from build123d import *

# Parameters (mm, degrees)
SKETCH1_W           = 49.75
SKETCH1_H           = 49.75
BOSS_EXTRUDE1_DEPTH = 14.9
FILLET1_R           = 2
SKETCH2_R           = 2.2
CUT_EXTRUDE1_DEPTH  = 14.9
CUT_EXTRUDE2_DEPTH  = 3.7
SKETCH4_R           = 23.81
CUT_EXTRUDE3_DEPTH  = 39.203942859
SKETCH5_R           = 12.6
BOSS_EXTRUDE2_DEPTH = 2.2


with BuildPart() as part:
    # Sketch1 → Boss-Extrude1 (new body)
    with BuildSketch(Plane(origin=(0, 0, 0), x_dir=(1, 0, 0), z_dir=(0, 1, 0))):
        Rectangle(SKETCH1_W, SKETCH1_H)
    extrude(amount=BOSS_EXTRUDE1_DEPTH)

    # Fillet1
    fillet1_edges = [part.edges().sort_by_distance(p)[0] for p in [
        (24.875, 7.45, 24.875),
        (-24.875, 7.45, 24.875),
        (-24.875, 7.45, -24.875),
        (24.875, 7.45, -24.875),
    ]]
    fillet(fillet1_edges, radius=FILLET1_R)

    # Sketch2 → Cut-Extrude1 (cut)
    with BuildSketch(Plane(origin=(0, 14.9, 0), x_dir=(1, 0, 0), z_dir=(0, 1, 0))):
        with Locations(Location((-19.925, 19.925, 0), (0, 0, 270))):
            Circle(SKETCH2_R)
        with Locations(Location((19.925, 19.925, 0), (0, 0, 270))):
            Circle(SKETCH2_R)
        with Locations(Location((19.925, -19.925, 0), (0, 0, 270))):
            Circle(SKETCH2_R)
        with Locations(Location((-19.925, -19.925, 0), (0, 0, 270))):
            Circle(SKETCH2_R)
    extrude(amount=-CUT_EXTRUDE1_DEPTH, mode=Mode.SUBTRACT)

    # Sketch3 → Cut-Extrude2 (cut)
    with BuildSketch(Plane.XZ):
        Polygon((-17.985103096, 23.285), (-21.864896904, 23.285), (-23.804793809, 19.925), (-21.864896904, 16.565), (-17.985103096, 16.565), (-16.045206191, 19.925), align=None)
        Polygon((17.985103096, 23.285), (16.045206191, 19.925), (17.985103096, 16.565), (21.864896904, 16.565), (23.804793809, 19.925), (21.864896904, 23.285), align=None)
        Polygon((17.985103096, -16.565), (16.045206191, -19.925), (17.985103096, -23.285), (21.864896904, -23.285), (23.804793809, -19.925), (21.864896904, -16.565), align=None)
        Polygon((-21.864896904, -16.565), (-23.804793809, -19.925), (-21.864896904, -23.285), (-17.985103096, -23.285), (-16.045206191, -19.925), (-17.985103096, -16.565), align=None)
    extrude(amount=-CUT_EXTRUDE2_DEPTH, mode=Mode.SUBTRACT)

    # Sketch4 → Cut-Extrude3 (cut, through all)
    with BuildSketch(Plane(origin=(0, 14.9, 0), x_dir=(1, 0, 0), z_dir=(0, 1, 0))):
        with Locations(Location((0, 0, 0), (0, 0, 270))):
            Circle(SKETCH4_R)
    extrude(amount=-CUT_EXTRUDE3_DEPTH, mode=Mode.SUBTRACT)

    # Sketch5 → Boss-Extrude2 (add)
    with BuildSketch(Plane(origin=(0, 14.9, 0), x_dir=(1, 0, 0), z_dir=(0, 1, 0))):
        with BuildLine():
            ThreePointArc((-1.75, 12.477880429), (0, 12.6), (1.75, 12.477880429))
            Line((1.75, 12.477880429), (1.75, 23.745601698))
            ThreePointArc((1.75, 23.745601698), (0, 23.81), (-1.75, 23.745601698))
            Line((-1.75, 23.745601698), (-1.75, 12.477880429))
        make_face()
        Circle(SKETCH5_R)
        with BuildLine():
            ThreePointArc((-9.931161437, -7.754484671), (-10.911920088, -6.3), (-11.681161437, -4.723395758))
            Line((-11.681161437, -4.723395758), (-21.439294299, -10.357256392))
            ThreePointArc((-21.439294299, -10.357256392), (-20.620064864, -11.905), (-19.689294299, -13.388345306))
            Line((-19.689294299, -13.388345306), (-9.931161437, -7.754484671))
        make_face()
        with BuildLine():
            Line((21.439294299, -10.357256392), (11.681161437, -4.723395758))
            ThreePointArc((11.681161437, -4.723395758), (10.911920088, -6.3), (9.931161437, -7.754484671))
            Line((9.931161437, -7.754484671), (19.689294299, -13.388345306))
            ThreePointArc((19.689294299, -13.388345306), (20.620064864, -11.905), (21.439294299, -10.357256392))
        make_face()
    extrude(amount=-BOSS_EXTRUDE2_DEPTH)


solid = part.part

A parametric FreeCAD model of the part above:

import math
import FreeCAD as App
import Part
import Sketcher
Q = App.Units.Quantity


def edges_at(feature, points):
    """Names of the edges that pass closest to the given points."""
    edges = feature.Shape.Edges
    near = lambda p: min(range(len(edges)), key=lambda i: edges[i].distToShape(Part.Vertex(*p))[0])
    return sorted({f"Edge{near(p) + 1}" for p in points})


def add_polygon(sketch, points):
    """Adds a closed chain of lines whose ends are joined by coincident constraints."""
    first, n = sketch.GeometryCount, len(points)
    for a, b in zip(points, points[1:] + points[:1]):
        sketch.addGeometry(Part.LineSegment(App.Vector(*a, 0), App.Vector(*b, 0)), False)
    for i in range(n):
        sketch.addConstraint(Sketcher.Constraint("Coincident", first + i, 2, first + (i + 1) % n, 1))

doc = App.newDocument("Part")
body = doc.addObject("PartDesign::Body", "Body")

# Sketch on XZ plane
sketch1 = body.newObject("Sketcher::SketchObject", "Sketch")
sketch1.AttachmentSupport = (doc.getObject("XZ_Plane"), [""])
sketch1.MapMode = "FlatFace"
add_polygon(sketch1, [(-25, -25), (-25, 25), (25, 25), (25, -25)])  # lines 0-3
sketch1.addConstraint(Sketcher.Constraint("Vertical", 0))
sketch1.addConstraint(Sketcher.Constraint("Horizontal", 1))
sketch1.addConstraint(Sketcher.Constraint("Vertical", 2))
sketch1.addConstraint(Sketcher.Constraint("Horizontal", 3))
sketch1.addConstraint(Sketcher.Constraint("Symmetric", 0, 2, 2, 2, -1, 1))
sketch1.addConstraint(Sketcher.Constraint("Equal", 3, 0))
sketch1.addConstraint(Sketcher.Constraint("DistanceX", 1, 1, 1, 2, 49.75))
pad1 = body.newObject("PartDesign::Pad", "Pad")
pad1.Profile = sketch1
pad1.Length = 14.9
pad1.Reversed = True
doc.recompute()

fillet = body.newObject("PartDesign::Fillet", "Fillet")
fillet.Base = (pad1, edges_at(pad1, [
    (24.875, 7.45, 24.875),
    (-24.875, 7.45, 24.875),
    (-24.875, 7.45, -24.875),
    (24.875, 7.45, -24.875),
]))
fillet.Radius = 2

# Sketch on XZ plane
sketch2 = body.newObject("Sketcher::SketchObject", "Sketch001")
sketch2.AttachmentSupport = (doc.getObject("XZ_Plane"), [""])
sketch2.MapMode = "FlatFace"
sketch2.AttachmentOffset = App.Placement(App.Vector(0, 0, -14.9), App.Rotation())
sketch2.addGeometry(Part.Circle(App.Vector(-19.9, -19.9, 0), App.Vector(0, 0, 1), 2.2), False)
sketch2.addGeometry(Part.Circle(App.Vector(19.9, -19.9, 0), App.Vector(0, 0, 1), 2.2), False)
sketch2.addGeometry(Part.Circle(App.Vector(19.9, 19.9, 0), App.Vector(0, 0, 1), 2.2), False)
sketch2.addGeometry(Part.Circle(App.Vector(-19.9, 19.9, 0), App.Vector(0, 0, 1), 2.2), False)
sketch2.addConstraint(Sketcher.Constraint("Equal", 0, 1))
sketch2.addConstraint(Sketcher.Constraint("Equal", 1, 2))
sketch2.addConstraint(Sketcher.Constraint("Equal", 2, 3))
sketch2.addConstraint(Sketcher.Constraint("Symmetric", 0, 3, 2, 3, -1, 1))
sketch2.addConstraint(Sketcher.Constraint("Symmetric", 1, 3, 3, 3, -1, 1))
sketch2.addConstraint(Sketcher.Constraint("Symmetric", 0, 3, 1, 3, -2))
sketch2.addConstraint(Sketcher.Constraint("Diameter", 0, 4.4))
sketch2.addConstraint(Sketcher.Constraint("DistanceX", 0, 3, 1, 3, 39.85))
sketch2.addConstraint(Sketcher.Constraint("DistanceY", 1, 3, 2, 3, 39.85))
pocket1 = body.newObject("PartDesign::Pocket", "Pocket")
pocket1.Profile = sketch2
pocket1.Length = 14.9
pocket1.Reversed = True

# Sketch on XZ plane
sketch3 = body.newObject("Sketcher::SketchObject", "Sketch002")
sketch3.AttachmentSupport = (doc.getObject("XZ_Plane"), [""])
sketch3.MapMode = "FlatFace"
add_polygon(sketch3, [(-18, 23.3), (-21.9, 23.3), (-23.8, 19.9), (-21.9, 16.6), (-18, 16.6), (-16, 19.9)])  # lines 0-5
add_polygon(sketch3, [(18, 23.3), (16, 19.9), (18, 16.6), (21.9, 16.6), (23.8, 19.9), (21.9, 23.3)])  # lines 6-11
add_polygon(sketch3, [(18, -16.6), (16, -19.9), (18, -23.3), (21.9, -23.3), (23.8, -19.9), (21.9, -16.6)])  # lines 12-17
add_polygon(sketch3, [(-21.9, -16.6), (-23.8, -19.9), (-21.9, -23.3), (-18, -23.3), (-16, -19.9), (-18, -16.6)])  # lines 18-23
sketch3.addConstraint(Sketcher.Constraint("Horizontal", 0))
sketch3.addConstraint(Sketcher.Constraint("Horizontal", 3))
sketch3.addConstraint(Sketcher.Constraint("Horizontal", 8))
sketch3.addConstraint(Sketcher.Constraint("Horizontal", 11))
sketch3.addConstraint(Sketcher.Constraint("Horizontal", 14))
sketch3.addConstraint(Sketcher.Constraint("Horizontal", 17))
sketch3.addConstraint(Sketcher.Constraint("Horizontal", 20))
sketch3.addConstraint(Sketcher.Constraint("Horizontal", 23))
sketch3.addConstraint(Sketcher.Constraint("Symmetric", 4, 2, 12, 2, -1, 1))
sketch3.addConstraint(Sketcher.Constraint("Symmetric", 5, 2, 13, 2, -1, 1))
sketch3.addConstraint(Sketcher.Constraint("Symmetric", 1, 2, 15, 2, -1, 1))
sketch3.addConstraint(Sketcher.Constraint("Symmetric", 2, 2, 16, 2, -1, 1))
sketch3.addConstraint(Sketcher.Constraint("Symmetric", 9, 2, 18, 2, -1, 1))
sketch3.addConstraint(Sketcher.Constraint("Symmetric", 10, 2, 19, 2, -1, 1))
sketch3.addConstraint(Sketcher.Constraint("Symmetric", 6, 2, 21, 2, -1, 1))
sketch3.addConstraint(Sketcher.Constraint("Symmetric", 7, 2, 22, 2, -1, 1))
sketch3.addConstraint(Sketcher.Constraint("Symmetric", 4, 2, 6, 2, -2))
sketch3.addConstraint(Sketcher.Constraint("Symmetric", 3, 2, 7, 2, -2))
sketch3.addConstraint(Sketcher.Constraint("Symmetric", 1, 2, 9, 2, -2))
sketch3.addConstraint(Sketcher.Constraint("Symmetric", 0, 2, 10, 2, -2))
sketch3.addConstraint(Sketcher.Constraint("Parallel", 1, 4))
sketch3.addConstraint(Sketcher.Constraint("Parallel", 2, 5))
sketch3.addConstraint(Sketcher.Constraint("Parallel", 4, 6))
sketch3.addConstraint(Sketcher.Constraint("Parallel", 5, 7))
sketch3.addConstraint(Sketcher.Constraint("Parallel", 6, 9))
sketch3.addConstraint(Sketcher.Constraint("Parallel", 9, 12))
sketch3.addConstraint(Sketcher.Constraint("Parallel", 12, 15))
sketch3.addConstraint(Sketcher.Constraint("Parallel", 15, 18))
sketch3.addConstraint(Sketcher.Constraint("Parallel", 18, 21))
sketch3.addConstraint(Sketcher.Constraint("Horizontal", 1, 2, 4, 2))
sketch3.addConstraint(Sketcher.Constraint("Vertical", 0, 2, 2, 2))
sketch3.addConstraint(Sketcher.Constraint("Angle", 1, Q("-120 deg")))
sketch3.addConstraint(Sketcher.Constraint("DistanceY", 1, 2, 0, 2, 3.36))
sketch3.addConstraint(Sketcher.Constraint("DistanceX", 2, 2, 7, 2, 39.85))
sketch3.addConstraint(Sketcher.Constraint("DistanceY", 12, 2, 7, 2, 36.49))
sketch3.addConstraint(Sketcher.Constraint("DistanceX", 0, 2, 0, 1, 3.879794))
pocket2 = body.newObject("PartDesign::Pocket", "Pocket001")
pocket2.Profile = sketch3
pocket2.Length = 3.7

# Sketch on XZ plane
sketch4 = body.newObject("Sketcher::SketchObject", "Sketch003")
sketch4.AttachmentSupport = (doc.getObject("XZ_Plane"), [""])
sketch4.MapMode = "FlatFace"
sketch4.AttachmentOffset = App.Placement(App.Vector(0, 0, -14.9), App.Rotation())
sketch4.addGeometry(Part.Circle(App.Vector(0, 0, 0), App.Vector(0, 0, 1), 24), False)
sketch4.addConstraint(Sketcher.Constraint("Coincident", 0, 3, -1, 1))
sketch4.addConstraint(Sketcher.Constraint("Diameter", 0, 47.62))
pocket3 = body.newObject("PartDesign::Pocket", "Pocket002")
pocket3.Profile = sketch4
pocket3.Type = "ThroughAll"
pocket3.Reversed = True

# Sketch on XZ plane
sketch5 = body.newObject("Sketcher::SketchObject", "Sketch004")
sketch5.AttachmentSupport = (doc.getObject("XZ_Plane"), [""])
sketch5.MapMode = "FlatFace"
sketch5.AttachmentOffset = App.Placement(App.Vector(0, 0, -14.9), App.Rotation())
sketch5.addGeometry(Part.LineSegment(App.Vector(1.8, -12.5, 0), App.Vector(1.8, -23.7, 0)), False)
sketch5.addGeometry(Part.ArcOfCircle(Part.Circle(App.Vector(0, 0, 0), App.Vector(0, 0, 1), 23.8), math.radians(-94.21), math.radians(-85.79)), False)
sketch5.addGeometry(Part.LineSegment(App.Vector(-1.8, -23.7, 0), App.Vector(-1.8, -12.5, 0)), False)
sketch5.addGeometry(Part.ArcOfCircle(Part.Circle(App.Vector(0, 0, 0), App.Vector(0, 0, 1), 12.6), math.radians(158), math.radians(262)), False)
sketch5.addGeometry(Part.LineSegment(App.Vector(-11.7, 4.7, 0), App.Vector(-21.4, 10.4, 0)), False)
sketch5.addGeometry(Part.ArcOfCircle(Part.Circle(App.Vector(0, 0, 0), App.Vector(0, 0, 1), 23.8), math.radians(145.79), math.radians(154.21)), False)
sketch5.addGeometry(Part.LineSegment(App.Vector(-19.7, 13.4, 0), App.Vector(-9.9, 7.8, 0)), False)
sketch5.addGeometry(Part.ArcOfCircle(Part.Circle(App.Vector(0, 0, 0), App.Vector(0, 0, 1), 12.6), math.radians(38), math.radians(142)), False)
sketch5.addGeometry(Part.LineSegment(App.Vector(9.9, 7.8, 0), App.Vector(19.7, 13.4, 0)), False)
sketch5.addGeometry(Part.ArcOfCircle(Part.Circle(App.Vector(0, 0, 0), App.Vector(0, 0, 1), 23.8), math.radians(25.79), math.radians(34.21)), False)
sketch5.addGeometry(Part.LineSegment(App.Vector(21.4, 10.4, 0), App.Vector(11.7, 4.7, 0)), False)
sketch5.addGeometry(Part.ArcOfCircle(Part.Circle(App.Vector(0, 0, 0), App.Vector(0, 0, 1), 12.6), math.radians(-82), math.radians(22)), False)
sketch5.addConstraint(Sketcher.Constraint("Coincident", 0, 2, 1, 2))
sketch5.addConstraint(Sketcher.Constraint("Coincident", 1, 1, 2, 1))
sketch5.addConstraint(Sketcher.Constraint("Coincident", 2, 2, 3, 2))
sketch5.addConstraint(Sketcher.Constraint("Coincident", 3, 1, 4, 1))
sketch5.addConstraint(Sketcher.Constraint("Coincident", 4, 2, 5, 2))
sketch5.addConstraint(Sketcher.Constraint("Coincident", 5, 1, 6, 1))
sketch5.addConstraint(Sketcher.Constraint("Coincident", 6, 2, 7, 2))
sketch5.addConstraint(Sketcher.Constraint("Coincident", 7, 1, 8, 1))
sketch5.addConstraint(Sketcher.Constraint("Coincident", 8, 2, 9, 2))
sketch5.addConstraint(Sketcher.Constraint("Coincident", 9, 1, 10, 1))
sketch5.addConstraint(Sketcher.Constraint("Coincident", 10, 2, 11, 2))
sketch5.addConstraint(Sketcher.Constraint("Coincident", 11, 1, 0, 1))
sketch5.addConstraint(Sketcher.Constraint("Vertical", 0))
sketch5.addConstraint(Sketcher.Constraint("Vertical", 2))
sketch5.addConstraint(Sketcher.Constraint("Coincident", 1, 3, -1, 1))
sketch5.addConstraint(Sketcher.Constraint("Coincident", 3, 3, -1, 1))
sketch5.addConstraint(Sketcher.Constraint("Coincident", 5, 3, -1, 1))
sketch5.addConstraint(Sketcher.Constraint("Coincident", 7, 3, -1, 1))
sketch5.addConstraint(Sketcher.Constraint("Coincident", 9, 3, -1, 1))
sketch5.addConstraint(Sketcher.Constraint("Coincident", 11, 3, -1, 1))
sketch5.addConstraint(Sketcher.Constraint("Equal", 1, 5))
sketch5.addConstraint(Sketcher.Constraint("Equal", 3, 7))
sketch5.addConstraint(Sketcher.Constraint("Equal", 5, 9))
sketch5.addConstraint(Sketcher.Constraint("Equal", 7, 11))
sketch5.addConstraint(Sketcher.Constraint("Parallel", 4, 6))
sketch5.addConstraint(Sketcher.Constraint("Parallel", 8, 10))
sketch5.addConstraint(Sketcher.Constraint("Horizontal", 0, 2, 1, 1))
sketch5.addConstraint(Sketcher.Constraint("Horizontal", 6, 2, 7, 1))
sketch5.addConstraint(Sketcher.Constraint("Horizontal", 5, 1, 8, 2))
sketch5.addConstraint(Sketcher.Constraint("Horizontal", 4, 2, 9, 1))
sketch5.addConstraint(Sketcher.Constraint("Equal", 4, 6))
sketch5.addConstraint(Sketcher.Constraint("Radius", 3, 12.6))
sketch5.addConstraint(Sketcher.Constraint("Angle", 4, Q("150 deg")))
sketch5.addConstraint(Sketcher.Constraint("Radius", 1, 23.81))
sketch5.addConstraint(Sketcher.Constraint("DistanceX", 1, 1, 0, 2, 3.5))
sketch5.addConstraint(Sketcher.Constraint("DistanceX", 4, 2, 5, 1, 1.75))
pad2 = body.newObject("PartDesign::Pad", "Pad001")
pad2.Profile = sketch5
pad2.Length = 2.2

doc.recompute()
